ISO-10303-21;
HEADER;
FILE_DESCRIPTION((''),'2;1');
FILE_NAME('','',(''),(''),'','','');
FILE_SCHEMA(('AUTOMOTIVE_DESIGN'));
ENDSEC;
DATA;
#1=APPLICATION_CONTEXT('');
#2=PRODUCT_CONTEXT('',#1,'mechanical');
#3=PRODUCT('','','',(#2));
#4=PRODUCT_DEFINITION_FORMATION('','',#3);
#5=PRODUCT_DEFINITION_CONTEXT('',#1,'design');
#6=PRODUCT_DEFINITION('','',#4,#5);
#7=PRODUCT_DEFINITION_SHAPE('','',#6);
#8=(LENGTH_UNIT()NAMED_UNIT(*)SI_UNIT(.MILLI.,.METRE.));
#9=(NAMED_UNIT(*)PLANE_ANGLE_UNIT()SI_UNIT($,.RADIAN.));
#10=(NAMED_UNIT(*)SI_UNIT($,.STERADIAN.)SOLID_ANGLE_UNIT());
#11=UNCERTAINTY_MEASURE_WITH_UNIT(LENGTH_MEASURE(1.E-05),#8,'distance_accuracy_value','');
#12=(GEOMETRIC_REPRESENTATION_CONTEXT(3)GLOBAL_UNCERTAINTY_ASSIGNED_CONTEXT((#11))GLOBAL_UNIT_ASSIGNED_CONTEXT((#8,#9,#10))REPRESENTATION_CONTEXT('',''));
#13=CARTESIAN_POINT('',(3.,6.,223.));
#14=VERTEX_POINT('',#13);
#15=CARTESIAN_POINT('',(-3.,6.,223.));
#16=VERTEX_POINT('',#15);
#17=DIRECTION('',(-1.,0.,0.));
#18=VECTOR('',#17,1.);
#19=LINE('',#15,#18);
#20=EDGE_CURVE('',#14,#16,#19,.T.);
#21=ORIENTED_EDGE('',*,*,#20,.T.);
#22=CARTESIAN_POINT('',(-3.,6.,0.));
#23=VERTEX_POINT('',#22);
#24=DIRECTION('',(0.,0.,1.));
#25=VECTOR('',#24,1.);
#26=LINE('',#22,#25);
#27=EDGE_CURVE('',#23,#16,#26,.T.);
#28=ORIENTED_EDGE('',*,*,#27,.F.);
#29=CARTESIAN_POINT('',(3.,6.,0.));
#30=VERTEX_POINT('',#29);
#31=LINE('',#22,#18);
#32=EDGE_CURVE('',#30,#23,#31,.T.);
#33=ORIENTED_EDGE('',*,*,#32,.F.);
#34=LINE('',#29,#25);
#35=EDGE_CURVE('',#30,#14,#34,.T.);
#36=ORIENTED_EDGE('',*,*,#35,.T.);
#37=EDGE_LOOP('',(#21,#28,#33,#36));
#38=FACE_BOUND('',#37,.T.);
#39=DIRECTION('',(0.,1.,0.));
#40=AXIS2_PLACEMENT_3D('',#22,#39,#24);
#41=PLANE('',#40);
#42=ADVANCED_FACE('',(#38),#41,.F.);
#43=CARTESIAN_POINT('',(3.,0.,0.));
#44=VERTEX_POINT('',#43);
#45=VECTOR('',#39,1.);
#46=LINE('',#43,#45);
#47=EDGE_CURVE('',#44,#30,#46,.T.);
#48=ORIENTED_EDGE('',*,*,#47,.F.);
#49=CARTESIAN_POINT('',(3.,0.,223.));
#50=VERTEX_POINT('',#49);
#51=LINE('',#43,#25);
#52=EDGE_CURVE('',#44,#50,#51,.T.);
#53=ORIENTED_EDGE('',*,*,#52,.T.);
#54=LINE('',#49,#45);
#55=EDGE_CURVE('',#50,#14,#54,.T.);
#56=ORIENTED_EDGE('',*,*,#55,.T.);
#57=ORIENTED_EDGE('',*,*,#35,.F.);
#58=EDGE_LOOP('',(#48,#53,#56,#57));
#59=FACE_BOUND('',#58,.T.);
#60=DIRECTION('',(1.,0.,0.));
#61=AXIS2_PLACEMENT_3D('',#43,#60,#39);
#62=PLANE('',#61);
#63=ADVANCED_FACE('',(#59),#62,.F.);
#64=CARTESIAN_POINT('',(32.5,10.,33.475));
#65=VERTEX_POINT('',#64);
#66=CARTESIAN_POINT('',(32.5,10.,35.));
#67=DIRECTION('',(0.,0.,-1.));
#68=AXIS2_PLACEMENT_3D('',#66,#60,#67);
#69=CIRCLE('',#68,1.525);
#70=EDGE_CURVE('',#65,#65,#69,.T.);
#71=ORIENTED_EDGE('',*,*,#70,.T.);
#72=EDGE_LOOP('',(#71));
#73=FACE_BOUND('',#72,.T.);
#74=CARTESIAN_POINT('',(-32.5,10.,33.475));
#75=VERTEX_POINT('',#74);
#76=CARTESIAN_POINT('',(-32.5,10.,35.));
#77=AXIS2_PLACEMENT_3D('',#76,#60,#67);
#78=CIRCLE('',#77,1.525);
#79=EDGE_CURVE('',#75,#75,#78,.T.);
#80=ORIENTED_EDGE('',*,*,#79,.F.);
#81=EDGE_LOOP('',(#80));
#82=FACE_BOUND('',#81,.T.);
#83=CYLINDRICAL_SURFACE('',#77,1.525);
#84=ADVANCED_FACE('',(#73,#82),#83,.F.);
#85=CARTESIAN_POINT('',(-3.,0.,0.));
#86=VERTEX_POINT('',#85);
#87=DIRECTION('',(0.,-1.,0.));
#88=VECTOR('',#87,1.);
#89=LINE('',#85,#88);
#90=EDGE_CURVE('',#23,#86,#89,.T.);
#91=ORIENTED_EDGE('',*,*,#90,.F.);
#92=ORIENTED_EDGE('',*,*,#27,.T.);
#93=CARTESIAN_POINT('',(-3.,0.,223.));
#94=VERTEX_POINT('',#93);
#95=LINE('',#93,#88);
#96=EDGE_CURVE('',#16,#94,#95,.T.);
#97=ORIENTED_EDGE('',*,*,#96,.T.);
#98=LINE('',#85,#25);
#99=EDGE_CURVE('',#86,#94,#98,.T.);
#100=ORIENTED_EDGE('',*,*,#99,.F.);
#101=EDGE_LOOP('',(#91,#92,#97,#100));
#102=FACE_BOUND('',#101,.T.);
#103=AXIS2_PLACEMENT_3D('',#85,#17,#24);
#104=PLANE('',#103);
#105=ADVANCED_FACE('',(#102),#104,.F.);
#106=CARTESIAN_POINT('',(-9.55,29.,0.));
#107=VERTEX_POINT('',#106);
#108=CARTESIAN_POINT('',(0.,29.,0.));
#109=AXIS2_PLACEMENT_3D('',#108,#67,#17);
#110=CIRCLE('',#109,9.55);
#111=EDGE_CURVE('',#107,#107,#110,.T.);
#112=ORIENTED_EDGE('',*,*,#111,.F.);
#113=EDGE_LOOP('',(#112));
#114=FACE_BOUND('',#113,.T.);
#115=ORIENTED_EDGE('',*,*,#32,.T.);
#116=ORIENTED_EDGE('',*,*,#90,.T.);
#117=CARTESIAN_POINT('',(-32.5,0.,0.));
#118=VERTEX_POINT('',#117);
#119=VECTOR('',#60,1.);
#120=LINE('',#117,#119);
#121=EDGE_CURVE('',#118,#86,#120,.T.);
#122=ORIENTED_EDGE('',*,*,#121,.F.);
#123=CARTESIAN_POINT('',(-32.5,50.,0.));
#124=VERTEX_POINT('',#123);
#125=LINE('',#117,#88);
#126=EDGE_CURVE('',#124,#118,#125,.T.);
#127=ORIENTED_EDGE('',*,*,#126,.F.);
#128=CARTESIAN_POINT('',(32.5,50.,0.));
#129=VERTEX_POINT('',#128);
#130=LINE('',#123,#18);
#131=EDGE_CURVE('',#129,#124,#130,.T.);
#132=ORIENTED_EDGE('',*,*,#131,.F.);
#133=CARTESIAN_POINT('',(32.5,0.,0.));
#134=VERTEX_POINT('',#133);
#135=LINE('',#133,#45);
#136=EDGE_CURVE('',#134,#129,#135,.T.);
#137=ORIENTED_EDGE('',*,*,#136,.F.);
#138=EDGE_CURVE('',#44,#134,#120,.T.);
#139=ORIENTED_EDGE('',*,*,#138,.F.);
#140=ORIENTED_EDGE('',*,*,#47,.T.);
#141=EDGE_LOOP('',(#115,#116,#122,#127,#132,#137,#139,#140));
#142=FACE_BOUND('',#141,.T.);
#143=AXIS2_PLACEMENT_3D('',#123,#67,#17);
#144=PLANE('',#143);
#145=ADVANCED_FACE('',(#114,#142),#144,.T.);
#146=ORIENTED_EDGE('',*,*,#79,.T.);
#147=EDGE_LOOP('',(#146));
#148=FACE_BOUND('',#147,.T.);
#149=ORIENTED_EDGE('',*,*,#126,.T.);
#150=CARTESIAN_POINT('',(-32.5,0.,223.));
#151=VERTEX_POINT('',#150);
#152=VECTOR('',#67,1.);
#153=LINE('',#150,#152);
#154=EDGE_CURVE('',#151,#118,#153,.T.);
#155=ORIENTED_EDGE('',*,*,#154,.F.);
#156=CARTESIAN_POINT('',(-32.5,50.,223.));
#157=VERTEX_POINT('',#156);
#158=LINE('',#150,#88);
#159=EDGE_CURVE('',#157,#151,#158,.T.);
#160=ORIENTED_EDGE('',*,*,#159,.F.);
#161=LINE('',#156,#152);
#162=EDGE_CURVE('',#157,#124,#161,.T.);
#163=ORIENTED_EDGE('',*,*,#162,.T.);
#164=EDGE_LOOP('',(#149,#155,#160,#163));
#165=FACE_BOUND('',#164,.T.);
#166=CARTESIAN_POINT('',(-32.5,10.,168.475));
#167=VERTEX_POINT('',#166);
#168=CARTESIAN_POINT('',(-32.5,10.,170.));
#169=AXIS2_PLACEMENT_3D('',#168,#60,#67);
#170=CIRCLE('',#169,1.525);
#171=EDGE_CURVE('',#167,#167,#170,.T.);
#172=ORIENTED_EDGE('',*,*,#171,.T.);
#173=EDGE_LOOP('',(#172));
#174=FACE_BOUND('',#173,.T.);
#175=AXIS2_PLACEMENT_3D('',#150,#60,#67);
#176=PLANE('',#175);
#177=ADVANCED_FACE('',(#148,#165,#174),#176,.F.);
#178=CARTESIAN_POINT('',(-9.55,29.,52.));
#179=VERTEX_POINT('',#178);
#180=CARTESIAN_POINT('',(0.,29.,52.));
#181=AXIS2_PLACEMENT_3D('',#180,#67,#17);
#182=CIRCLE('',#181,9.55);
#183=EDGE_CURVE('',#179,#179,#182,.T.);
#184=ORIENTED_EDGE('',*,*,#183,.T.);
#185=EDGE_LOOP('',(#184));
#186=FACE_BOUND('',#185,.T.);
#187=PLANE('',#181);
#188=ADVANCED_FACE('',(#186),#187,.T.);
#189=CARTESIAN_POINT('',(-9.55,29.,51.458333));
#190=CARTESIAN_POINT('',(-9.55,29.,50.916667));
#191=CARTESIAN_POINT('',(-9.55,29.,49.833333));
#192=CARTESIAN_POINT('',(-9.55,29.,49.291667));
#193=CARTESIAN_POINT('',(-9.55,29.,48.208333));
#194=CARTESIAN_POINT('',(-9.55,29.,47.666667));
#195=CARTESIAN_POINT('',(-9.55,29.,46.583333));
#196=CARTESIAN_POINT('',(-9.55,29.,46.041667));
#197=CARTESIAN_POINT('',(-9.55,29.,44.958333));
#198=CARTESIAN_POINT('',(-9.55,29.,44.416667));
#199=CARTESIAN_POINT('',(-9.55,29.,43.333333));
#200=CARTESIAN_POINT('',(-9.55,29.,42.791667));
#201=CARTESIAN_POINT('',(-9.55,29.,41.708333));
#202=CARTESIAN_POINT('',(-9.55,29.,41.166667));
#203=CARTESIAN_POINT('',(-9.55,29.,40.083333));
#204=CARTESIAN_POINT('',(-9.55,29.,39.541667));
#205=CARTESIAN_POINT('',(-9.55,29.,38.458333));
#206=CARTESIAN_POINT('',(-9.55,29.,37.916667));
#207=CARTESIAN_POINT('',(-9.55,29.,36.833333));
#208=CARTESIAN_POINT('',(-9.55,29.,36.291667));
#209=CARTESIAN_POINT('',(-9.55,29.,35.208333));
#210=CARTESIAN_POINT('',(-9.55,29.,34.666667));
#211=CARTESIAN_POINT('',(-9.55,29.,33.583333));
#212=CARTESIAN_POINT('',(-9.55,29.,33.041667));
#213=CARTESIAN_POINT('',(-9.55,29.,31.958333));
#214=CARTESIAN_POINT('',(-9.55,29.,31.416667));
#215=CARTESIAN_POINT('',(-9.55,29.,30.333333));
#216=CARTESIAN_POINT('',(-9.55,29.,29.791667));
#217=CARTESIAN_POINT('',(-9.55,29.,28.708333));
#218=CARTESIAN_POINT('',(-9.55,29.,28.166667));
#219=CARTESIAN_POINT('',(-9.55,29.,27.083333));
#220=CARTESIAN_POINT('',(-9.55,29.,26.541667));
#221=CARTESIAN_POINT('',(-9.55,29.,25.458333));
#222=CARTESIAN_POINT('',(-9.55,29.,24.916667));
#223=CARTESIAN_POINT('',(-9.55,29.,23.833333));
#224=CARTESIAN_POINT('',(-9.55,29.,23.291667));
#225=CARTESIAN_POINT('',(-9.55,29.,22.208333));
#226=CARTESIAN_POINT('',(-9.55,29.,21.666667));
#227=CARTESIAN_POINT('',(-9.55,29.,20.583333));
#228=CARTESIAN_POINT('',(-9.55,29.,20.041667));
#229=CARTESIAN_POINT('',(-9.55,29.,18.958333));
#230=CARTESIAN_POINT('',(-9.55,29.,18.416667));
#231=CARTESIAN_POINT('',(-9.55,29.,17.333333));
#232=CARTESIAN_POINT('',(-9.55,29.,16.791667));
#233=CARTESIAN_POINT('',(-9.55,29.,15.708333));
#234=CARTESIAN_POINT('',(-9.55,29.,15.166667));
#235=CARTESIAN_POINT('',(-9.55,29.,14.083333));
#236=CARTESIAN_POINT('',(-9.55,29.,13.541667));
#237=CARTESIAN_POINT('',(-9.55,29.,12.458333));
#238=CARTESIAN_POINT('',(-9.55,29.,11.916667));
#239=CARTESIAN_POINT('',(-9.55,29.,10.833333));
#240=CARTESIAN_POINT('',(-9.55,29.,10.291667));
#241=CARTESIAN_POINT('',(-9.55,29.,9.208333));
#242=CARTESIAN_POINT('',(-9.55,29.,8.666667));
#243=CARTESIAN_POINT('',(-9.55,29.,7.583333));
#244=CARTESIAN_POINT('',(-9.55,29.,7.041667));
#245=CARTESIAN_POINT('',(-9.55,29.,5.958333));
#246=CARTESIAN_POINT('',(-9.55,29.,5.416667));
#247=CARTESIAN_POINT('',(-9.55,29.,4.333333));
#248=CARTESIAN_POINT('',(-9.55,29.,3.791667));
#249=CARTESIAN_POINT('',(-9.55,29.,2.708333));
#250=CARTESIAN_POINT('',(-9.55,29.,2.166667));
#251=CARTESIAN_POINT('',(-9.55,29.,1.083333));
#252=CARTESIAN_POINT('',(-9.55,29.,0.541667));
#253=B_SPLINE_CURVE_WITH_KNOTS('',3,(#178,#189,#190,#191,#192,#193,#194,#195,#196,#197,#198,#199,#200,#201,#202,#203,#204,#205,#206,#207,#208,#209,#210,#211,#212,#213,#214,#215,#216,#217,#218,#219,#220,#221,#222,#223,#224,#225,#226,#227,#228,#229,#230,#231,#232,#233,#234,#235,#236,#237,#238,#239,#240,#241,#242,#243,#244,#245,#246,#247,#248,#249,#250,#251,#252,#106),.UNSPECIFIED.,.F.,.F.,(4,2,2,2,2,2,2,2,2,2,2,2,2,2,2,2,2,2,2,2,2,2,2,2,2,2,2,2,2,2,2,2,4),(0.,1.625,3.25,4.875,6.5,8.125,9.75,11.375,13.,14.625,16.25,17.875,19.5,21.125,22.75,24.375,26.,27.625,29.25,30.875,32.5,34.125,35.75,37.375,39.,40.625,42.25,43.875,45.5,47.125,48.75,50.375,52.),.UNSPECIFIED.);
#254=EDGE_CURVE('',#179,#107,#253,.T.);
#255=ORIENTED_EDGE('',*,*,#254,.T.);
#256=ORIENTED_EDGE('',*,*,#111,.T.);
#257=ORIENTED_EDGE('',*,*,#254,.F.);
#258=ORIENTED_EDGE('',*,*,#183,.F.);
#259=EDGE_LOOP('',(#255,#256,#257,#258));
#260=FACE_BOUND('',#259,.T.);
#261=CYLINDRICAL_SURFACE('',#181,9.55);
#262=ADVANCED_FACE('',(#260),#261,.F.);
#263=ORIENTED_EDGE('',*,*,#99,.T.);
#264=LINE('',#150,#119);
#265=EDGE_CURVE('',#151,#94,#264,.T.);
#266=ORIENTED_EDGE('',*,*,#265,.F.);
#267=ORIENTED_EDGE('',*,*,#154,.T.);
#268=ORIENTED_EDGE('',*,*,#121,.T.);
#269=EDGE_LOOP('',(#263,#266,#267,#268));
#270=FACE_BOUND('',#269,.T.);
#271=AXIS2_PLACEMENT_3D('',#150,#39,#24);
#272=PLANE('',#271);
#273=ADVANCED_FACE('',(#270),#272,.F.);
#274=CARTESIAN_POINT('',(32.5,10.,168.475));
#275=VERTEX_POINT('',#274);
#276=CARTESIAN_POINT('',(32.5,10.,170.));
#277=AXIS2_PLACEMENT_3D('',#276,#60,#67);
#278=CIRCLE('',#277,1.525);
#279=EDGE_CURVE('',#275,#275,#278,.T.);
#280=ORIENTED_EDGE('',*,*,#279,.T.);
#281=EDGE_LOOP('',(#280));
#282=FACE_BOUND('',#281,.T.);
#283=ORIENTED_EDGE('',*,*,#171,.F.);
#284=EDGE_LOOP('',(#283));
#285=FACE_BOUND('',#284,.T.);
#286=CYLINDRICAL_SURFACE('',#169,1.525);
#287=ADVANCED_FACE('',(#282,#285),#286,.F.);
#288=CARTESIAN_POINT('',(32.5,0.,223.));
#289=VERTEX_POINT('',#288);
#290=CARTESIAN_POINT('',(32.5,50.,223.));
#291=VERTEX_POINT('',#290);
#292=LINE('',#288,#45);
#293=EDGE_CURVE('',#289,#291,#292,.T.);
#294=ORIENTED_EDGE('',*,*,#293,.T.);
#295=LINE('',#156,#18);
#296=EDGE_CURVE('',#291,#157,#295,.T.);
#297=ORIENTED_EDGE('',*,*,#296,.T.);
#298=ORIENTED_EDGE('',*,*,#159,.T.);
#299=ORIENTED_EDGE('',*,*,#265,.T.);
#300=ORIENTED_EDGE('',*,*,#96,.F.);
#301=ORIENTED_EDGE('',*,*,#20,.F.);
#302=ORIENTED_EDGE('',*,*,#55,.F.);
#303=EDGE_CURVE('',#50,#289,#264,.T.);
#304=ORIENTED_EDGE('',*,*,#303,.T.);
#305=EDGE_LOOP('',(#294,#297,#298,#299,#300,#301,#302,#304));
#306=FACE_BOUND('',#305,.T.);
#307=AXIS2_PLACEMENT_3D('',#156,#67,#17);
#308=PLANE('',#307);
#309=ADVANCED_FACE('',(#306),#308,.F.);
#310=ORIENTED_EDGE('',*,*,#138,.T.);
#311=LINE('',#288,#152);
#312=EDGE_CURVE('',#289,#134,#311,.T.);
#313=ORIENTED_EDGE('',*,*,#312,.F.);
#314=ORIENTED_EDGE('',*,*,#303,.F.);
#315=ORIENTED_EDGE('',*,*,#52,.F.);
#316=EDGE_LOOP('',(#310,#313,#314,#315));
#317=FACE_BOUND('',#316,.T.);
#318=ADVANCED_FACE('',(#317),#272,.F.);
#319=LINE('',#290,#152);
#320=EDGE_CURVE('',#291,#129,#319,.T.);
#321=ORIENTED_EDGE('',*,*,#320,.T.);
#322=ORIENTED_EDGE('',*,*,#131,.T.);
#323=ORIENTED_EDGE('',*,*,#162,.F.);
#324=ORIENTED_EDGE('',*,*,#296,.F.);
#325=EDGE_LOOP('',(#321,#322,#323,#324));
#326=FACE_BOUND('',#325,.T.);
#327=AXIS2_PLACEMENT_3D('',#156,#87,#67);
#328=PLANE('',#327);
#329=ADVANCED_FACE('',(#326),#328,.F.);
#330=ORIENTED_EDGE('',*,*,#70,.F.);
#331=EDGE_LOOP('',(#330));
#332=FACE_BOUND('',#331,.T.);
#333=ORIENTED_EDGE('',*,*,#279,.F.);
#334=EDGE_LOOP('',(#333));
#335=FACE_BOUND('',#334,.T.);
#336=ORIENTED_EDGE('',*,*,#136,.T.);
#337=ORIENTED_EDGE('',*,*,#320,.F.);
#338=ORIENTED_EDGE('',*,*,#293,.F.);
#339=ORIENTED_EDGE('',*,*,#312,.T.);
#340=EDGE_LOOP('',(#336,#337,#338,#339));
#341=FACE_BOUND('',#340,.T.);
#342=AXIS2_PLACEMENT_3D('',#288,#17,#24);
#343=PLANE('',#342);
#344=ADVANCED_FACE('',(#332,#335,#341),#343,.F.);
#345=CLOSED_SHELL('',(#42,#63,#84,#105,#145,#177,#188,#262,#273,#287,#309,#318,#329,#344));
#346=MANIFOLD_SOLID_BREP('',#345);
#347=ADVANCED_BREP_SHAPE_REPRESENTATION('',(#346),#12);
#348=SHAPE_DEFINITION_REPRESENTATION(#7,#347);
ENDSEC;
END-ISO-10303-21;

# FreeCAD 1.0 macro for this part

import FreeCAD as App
import Part
import Sketcher
Q = App.Units.Quantity

doc = App.newDocument("Part")
body = doc.addObject("PartDesign::Body", "Body")

# Sketch on XY plane
sketch1 = doc.addObject("Sketcher::SketchObject", "Sketch")
body.addObject(sketch1)
sketch1.AttachmentSupport = (doc.XY_Plane, [""])
sketch1.MapMode = "FlatFace"
sketch1.addGeometry(Part.LineSegment(App.Vector(-32, 50, 0), App.Vector(-32, 0, 0)), False)
sketch1.addGeometry(Part.LineSegment(App.Vector(-32, 0, 0), App.Vector(32, 0, 0)), False)
sketch1.addGeometry(Part.LineSegment(App.Vector(32, 0, 0), App.Vector(32, 50, 0)), False)
sketch1.addGeometry(Part.LineSegment(App.Vector(32, 50, 0), App.Vector(-32, 50, 0)), False)
sketch1.addConstraint(Sketcher.Constraint("Coincident", 0, 2, 1, 1))
sketch1.addConstraint(Sketcher.Constraint("Coincident", 1, 2, 2, 1))
sketch1.addConstraint(Sketcher.Constraint("Coincident", 2, 2, 3, 1))
sketch1.addConstraint(Sketcher.Constraint("Coincident", 3, 2, 0, 1))
sketch1.addConstraint(Sketcher.Constraint("Vertical", 0))
sketch1.addConstraint(Sketcher.Constraint("Horizontal", 1))
sketch1.addConstraint(Sketcher.Constraint("Vertical", 2))
sketch1.addConstraint(Sketcher.Constraint("Horizontal", 3))
sketch1.addConstraint(Sketcher.Constraint("Symmetric", 0, 2, 1, 2, -1, 1))
sketch1.addConstraint(Sketcher.Constraint("DistanceX", 1, 1, 1, 2, Q("65 mm")))
sketch1.addConstraint(Sketcher.Constraint("DistanceY", 0, 2, 0, 1, Q("50 mm")))
pad1 = doc.addObject("PartDesign::Pad", "Pad")
body.addObject(pad1)
pad1.Profile = sketch1
pad1.Length = 223

# Sketch on XY plane
sketch2 = doc.addObject("Sketcher::SketchObject", "Sketch001")
body.addObject(sketch2)
sketch2.AttachmentSupport = (doc.XY_Plane, [""])
sketch2.MapMode = "FlatFace"
sketch2.AttachmentOffset = App.Placement(App.Vector(0, 0, 223), App.Rotation())
sketch2.addGeometry(Part.LineSegment(App.Vector(-3, 6, 0), App.Vector(-3, 0, 0)), False)
sketch2.addGeometry(Part.LineSegment(App.Vector(-3, 0, 0), App.Vector(3, 0, 0)), False)
sketch2.addGeometry(Part.LineSegment(App.Vector(3, 0, 0), App.Vector(3, 6, 0)), False)
sketch2.addGeometry(Part.LineSegment(App.Vector(3, 6, 0), App.Vector(-3, 6, 0)), False)
sketch2.addConstraint(Sketcher.Constraint("Coincident", 0, 2, 1, 1))
sketch2.addConstraint(Sketcher.Constraint("Coincident", 1, 2, 2, 1))
sketch2.addConstraint(Sketcher.Constraint("Coincident", 2, 2, 3, 1))
sketch2.addConstraint(Sketcher.Constraint("Coincident", 3, 2, 0, 1))
sketch2.addConstraint(Sketcher.Constraint("Vertical", 0))
sketch2.addConstraint(Sketcher.Constraint("Horizontal", 1))
sketch2.addConstraint(Sketcher.Constraint("Vertical", 2))
sketch2.addConstraint(Sketcher.Constraint("Horizontal", 3))
sketch2.addConstraint(Sketcher.Constraint("Symmetric", 0, 2, 1, 2, -1, 1))
sketch2.addConstraint(Sketcher.Constraint("Equal", 3, 0))
sketch2.addConstraint(Sketcher.Constraint("DistanceX", 1, 1, 1, 2, Q("6 mm")))
pocket1 = doc.addObject("PartDesign::Pocket", "Pocket")
body.addObject(pocket1)
pocket1.Profile = sketch2
pocket1.Type = "ThroughAll"

# Sketch on XY plane
sketch3 = doc.addObject("Sketcher::SketchObject", "Sketch002")
body.addObject(sketch3)
sketch3.AttachmentSupport = (doc.XY_Plane, [""])
sketch3.MapMode = "FlatFace"
sketch3.addGeometry(Part.Circle(App.Vector(0, 29, 0), App.Vector(0, 0, 1), 10), False)
sketch3.addConstraint(Sketcher.Constraint("PointOnObject", 0, 3, -2))
sketch3.addConstraint(Sketcher.Constraint("Diameter", 0, Q("19.1 mm")))
sketch3.addConstraint(Sketcher.Constraint("DistanceY", -1, 1, 0, 3, Q("29 mm")))
pocket2 = doc.addObject("PartDesign::Pocket", "Pocket001")
body.addObject(pocket2)
pocket2.Profile = sketch3
pocket2.Length = 52
pocket2.Reversed = True

# Sketch on YZ plane
sketch4 = doc.addObject("Sketcher::SketchObject", "Sketch003")
body.addObject(sketch4)
sketch4.AttachmentSupport = (doc.YZ_Plane, [""])
sketch4.MapMode = "FlatFace"
sketch4.AttachmentOffset = App.Placement(App.Vector(0, 0, 32.5), App.Rotation())
sketch4.addGeometry(Part.Circle(App.Vector(10, 170, 0), App.Vector(0, 0, 1), 1.5), False)
sketch4.addGeometry(Part.Circle(App.Vector(10, 35, 0), App.Vector(0, 0, 1), 1.5), False)
sketch4.addConstraint(Sketcher.Constraint("Equal", 0, 1))
sketch4.addConstraint(Sketcher.Constraint("Vertical", 0, 3, 1, 3))
sketch4.addConstraint(Sketcher.Constraint("Diameter", 0, Q("3.05 mm")))
sketch4.addConstraint(Sketcher.Constraint("DistanceX", -1, 1, 0, 3, Q("10 mm")))
sketch4.addConstraint(Sketcher.Constraint("DistanceY", -1, 1, 0, 3, Q("170 mm")))
sketch4.addConstraint(Sketcher.Constraint("DistanceY", -1, 1, 1, 3, Q("35 mm")))
pocket3 = doc.addObject("PartDesign::Pocket", "Pocket002")
body.addObject(pocket3)
pocket3.Profile = sketch4
pocket3.Type = "ThroughAll"

doc.recompute()
